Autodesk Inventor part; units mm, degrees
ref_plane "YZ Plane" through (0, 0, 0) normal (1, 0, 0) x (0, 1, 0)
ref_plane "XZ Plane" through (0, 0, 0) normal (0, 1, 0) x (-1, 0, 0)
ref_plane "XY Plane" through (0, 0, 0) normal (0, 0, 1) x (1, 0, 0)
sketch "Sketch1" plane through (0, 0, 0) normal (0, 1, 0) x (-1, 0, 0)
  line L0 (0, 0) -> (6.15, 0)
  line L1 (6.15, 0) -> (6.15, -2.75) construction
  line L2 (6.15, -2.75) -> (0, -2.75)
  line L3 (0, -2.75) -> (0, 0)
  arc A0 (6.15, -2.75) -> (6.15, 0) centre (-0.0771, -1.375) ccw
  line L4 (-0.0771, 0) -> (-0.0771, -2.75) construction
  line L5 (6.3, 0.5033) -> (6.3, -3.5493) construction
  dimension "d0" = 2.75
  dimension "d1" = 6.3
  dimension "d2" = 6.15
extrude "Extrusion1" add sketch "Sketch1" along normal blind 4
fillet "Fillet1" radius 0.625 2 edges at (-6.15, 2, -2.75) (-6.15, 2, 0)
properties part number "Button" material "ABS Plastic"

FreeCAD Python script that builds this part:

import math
import FreeCAD as App
import Part
import Sketcher
from FreeCAD import Vector


def edges_at(feature, points):
    """Names of the edges that pass closest to the given points."""
    edges = feature.Shape.Edges
    near = lambda p: min(range(len(edges)), key=lambda i: edges[i].distToShape(Part.Vertex(*p))[0])
    return sorted({f"Edge{near(p) + 1}" for p in points})

doc = App.newDocument("Part")
body = doc.addObject("PartDesign::Body", "Body")

sketch1 = doc.addObject("Sketcher::SketchObject", "Sketch")
body.addObject(sketch1)
sketch1.AttachmentSupport = (doc.XZ_Plane, [""])
sketch1.MapMode = "FlatFace"
sketch1.addGeometry(Part.LineSegment(Vector(-6.15, 0, 0), Vector(0, 0, 0)), False)
sketch1.addGeometry(Part.LineSegment(Vector(0, 0, 0), Vector(0, -2.75, 0)), False)
sketch1.addGeometry(Part.LineSegment(Vector(0, -2.75, 0), Vector(-6.15, -2.75, 0)), False)
sketch1.addGeometry(Part.ArcOfCircle(Part.Circle(Vector(0.0771, -1.375, 0), Vector(0, 0, 1), 6.3771), math.radians(167.548374), math.radians(192.451626)), False)
sketch1.addConstraint(Sketcher.Constraint("Coincident", 0, 2, 1, 1))
sketch1.addConstraint(Sketcher.Constraint("Coincident", 1, 2, 2, 1))
sketch1.addConstraint(Sketcher.Constraint("Coincident", 2, 2, 3, 2))
sketch1.addConstraint(Sketcher.Constraint("Coincident", 3, 1, 0, 1))
sketch1.addConstraint(Sketcher.Constraint("Horizontal", 0))
sketch1.addConstraint(Sketcher.Constraint("Vertical", 1))
sketch1.addConstraint(Sketcher.Constraint("Horizontal", 2))
sketch1.addConstraint(Sketcher.Constraint("Coincident", 0, 2, -1, 1))
sketch1.addConstraint(Sketcher.Constraint("Vertical", 2, 2, 3, 1))
sketch1.addConstraint(Sketcher.Constraint("DistanceX", 0, 1, 0, 2, 6.15))
sketch1.addConstraint(Sketcher.Constraint("DistanceY", 1, 2, 1, 1, 2.75))
sketch1.addConstraint(Sketcher.Constraint("Radius", 3, 6.377))
pad1 = doc.addObject("PartDesign::Pad", "Pad")
body.addObject(pad1)
pad1.Profile = sketch1
pad1.Length = 4
pad1.Reversed = True
doc.recompute()

fillet = doc.addObject("PartDesign::Fillet", "Fillet")
body.addObject(fillet)
fillet.Base = (pad1, edges_at(pad1, [(-6.15, 2, -2.75), (-6.15, 2, 0)]))
fillet.Radius = 0.625

doc.recompute()
